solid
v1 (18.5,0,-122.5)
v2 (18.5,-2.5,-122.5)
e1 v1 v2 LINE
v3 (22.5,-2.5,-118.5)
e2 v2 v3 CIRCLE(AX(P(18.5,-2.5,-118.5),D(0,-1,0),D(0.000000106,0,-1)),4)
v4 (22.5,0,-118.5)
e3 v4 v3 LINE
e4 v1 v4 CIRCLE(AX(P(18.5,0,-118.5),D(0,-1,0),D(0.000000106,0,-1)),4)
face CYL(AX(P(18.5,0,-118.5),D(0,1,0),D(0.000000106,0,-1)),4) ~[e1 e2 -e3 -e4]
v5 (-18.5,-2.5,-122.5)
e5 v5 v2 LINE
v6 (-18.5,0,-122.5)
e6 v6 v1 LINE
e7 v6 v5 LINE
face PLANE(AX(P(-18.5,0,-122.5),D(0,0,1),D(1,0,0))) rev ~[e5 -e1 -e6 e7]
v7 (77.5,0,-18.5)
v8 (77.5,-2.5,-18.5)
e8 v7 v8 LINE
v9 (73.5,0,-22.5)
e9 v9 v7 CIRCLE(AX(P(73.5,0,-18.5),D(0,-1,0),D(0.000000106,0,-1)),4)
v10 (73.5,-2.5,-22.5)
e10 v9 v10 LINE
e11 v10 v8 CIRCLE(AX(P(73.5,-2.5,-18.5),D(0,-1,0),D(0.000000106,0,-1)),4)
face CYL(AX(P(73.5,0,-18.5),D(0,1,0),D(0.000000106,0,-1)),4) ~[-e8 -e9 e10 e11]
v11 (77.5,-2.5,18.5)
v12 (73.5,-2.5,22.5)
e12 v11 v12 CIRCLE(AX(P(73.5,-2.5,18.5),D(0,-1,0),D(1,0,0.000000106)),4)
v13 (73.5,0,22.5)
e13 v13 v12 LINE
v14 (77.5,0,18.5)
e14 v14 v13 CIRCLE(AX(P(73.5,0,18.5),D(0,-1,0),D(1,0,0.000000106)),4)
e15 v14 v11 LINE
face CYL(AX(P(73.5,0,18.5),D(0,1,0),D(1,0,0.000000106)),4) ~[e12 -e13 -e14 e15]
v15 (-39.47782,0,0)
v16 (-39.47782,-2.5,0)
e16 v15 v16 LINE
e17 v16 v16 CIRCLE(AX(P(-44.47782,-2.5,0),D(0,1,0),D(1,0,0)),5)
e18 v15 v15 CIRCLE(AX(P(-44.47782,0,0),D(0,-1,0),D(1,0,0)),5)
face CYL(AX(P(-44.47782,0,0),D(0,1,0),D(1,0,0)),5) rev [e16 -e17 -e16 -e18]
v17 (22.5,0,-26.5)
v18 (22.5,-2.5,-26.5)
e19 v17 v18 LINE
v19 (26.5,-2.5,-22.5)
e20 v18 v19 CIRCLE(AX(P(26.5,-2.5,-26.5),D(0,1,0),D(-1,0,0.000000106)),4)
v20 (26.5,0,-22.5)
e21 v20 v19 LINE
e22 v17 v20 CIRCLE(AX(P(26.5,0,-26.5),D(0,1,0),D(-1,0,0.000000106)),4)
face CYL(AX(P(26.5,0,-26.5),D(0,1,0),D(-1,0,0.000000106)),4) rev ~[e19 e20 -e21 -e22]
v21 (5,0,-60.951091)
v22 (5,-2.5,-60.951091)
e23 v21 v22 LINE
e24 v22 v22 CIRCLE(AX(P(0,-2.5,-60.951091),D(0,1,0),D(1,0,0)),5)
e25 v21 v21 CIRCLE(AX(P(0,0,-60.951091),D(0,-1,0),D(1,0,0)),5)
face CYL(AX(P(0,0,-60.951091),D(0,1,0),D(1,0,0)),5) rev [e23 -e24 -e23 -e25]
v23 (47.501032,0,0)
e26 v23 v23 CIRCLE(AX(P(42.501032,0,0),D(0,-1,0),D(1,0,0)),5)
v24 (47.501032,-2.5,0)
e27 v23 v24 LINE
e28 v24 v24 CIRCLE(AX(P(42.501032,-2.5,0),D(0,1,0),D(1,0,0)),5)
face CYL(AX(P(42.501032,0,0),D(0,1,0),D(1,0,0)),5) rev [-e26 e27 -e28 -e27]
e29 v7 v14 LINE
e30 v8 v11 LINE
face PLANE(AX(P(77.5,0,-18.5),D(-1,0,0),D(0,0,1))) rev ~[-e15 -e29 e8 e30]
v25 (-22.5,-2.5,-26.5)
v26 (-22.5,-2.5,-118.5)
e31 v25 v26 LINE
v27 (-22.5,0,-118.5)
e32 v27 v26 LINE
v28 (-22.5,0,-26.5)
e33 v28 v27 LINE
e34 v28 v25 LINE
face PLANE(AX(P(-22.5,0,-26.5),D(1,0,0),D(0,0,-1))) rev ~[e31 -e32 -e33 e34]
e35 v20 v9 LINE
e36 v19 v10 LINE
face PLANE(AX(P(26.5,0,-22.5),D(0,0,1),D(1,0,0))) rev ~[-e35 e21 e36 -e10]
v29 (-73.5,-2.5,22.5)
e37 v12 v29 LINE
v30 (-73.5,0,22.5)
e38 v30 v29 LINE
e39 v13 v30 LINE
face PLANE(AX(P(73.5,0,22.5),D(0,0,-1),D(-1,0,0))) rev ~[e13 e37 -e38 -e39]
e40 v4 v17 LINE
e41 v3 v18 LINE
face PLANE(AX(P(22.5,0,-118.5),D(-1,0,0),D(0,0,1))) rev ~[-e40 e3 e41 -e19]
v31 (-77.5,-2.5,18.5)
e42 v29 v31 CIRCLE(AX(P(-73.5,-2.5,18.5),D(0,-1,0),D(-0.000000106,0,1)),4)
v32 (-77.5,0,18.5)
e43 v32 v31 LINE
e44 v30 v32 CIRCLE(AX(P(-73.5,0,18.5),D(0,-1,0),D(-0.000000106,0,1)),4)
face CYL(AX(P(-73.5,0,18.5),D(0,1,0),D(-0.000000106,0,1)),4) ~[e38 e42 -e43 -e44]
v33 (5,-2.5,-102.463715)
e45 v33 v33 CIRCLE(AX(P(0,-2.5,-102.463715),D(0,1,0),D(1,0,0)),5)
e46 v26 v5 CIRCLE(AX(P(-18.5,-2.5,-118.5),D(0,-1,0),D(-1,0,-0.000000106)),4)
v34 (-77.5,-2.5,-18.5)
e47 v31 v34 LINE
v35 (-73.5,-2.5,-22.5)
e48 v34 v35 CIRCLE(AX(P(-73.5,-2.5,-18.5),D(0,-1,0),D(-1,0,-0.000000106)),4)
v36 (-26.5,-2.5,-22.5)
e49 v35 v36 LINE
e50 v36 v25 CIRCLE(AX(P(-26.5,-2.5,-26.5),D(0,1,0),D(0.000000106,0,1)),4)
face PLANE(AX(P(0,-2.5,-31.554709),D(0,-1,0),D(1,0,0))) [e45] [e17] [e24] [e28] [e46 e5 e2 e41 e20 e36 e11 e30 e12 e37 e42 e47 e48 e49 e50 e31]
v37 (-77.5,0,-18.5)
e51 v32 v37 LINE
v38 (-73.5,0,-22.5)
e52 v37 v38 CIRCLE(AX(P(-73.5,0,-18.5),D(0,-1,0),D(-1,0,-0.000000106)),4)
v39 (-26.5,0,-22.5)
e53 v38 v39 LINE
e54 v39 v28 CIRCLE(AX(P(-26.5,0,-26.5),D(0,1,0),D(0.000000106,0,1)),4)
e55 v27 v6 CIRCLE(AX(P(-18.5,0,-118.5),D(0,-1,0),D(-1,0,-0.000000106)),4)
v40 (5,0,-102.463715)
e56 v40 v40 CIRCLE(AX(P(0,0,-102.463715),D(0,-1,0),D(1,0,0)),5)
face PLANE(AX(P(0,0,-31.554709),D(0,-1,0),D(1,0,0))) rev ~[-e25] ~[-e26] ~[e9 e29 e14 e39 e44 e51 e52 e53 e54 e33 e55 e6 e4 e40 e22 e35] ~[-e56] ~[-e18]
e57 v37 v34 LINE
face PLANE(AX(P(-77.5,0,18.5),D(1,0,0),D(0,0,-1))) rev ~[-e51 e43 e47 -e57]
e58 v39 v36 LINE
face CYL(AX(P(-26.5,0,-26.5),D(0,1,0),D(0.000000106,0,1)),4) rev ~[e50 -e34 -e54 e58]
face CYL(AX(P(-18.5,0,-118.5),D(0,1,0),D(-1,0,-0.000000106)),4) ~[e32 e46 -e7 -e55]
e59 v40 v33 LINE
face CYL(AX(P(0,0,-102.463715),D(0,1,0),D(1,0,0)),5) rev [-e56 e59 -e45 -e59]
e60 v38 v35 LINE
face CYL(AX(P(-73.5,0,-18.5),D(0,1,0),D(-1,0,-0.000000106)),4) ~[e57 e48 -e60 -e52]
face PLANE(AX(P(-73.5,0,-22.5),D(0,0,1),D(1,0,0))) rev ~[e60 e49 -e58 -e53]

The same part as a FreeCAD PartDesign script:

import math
import FreeCAD as App
import Part
import Sketcher
from FreeCAD import Vector

doc = App.newDocument("Part")
body = doc.addObject("PartDesign::Body", "Body")

# Sketch on XZ plane
sketch1 = body.newObject("Sketcher::SketchObject", "Sketch")
sketch1.AttachmentSupport = (doc.getObject("XZ_Plane"), [""])
sketch1.MapMode = "FlatFace"
sketch1.addGeometry([
    Part.ArcOfCircle(Part.Circle(Vector(73.5, 18.5, 0), Vector(0, 0, 1), 4), math.radians(0), math.radians(90)),  # 0
    Part.LineSegment(Vector(73.5, 22.5, 0), Vector(-73.5, 22.5, 0)),  # 1
    Part.ArcOfCircle(Part.Circle(Vector(-73.5, 18.5, 0), Vector(0, 0, 1), 4), math.radians(90), math.radians(180)),  # 2
    Part.LineSegment(Vector(-77.5, 18.5, 0), Vector(-77.5, -18.5, 0)),  # 3
    Part.ArcOfCircle(Part.Circle(Vector(-73.5, -18.5, 0), Vector(0, 0, 1), 4), math.radians(-180), math.radians(-90)),  # 4
    Part.LineSegment(Vector(-73.5, -22.5, 0), Vector(-26.5, -22.5, 0)),  # 5
    Part.ArcOfCircle(Part.Circle(Vector(-26.5, -26.5, 0), Vector(0, 0, 1), 4), math.radians(0), math.radians(90)),  # 6
    Part.LineSegment(Vector(-22.5, -26.5, 0), Vector(-22.5, -118.5, 0)),  # 7
    Part.ArcOfCircle(Part.Circle(Vector(-18.5, -118.5, 0), Vector(0, 0, 1), 4), math.radians(-180), math.radians(-90)),  # 8
    Part.LineSegment(Vector(-18.5, -122.5, 0), Vector(18.5, -122.5, 0)),  # 9
    Part.ArcOfCircle(Part.Circle(Vector(18.5, -118.5, 0), Vector(0, 0, 1), 4), math.radians(-90), math.radians(0)),  # 10
    Part.LineSegment(Vector(22.5, -118.5, 0), Vector(22.5, -26.5, 0)),  # 11
    Part.ArcOfCircle(Part.Circle(Vector(26.5, -26.5, 0), Vector(0, 0, 1), 4), math.radians(90), math.radians(180)),  # 12
    Part.LineSegment(Vector(26.5, -22.5, 0), Vector(73.5, -22.5, 0)),  # 13
    Part.ArcOfCircle(Part.Circle(Vector(73.5, -18.5, 0), Vector(0, 0, 1), 4), math.radians(-90), math.radians(0)),  # 14
    Part.LineSegment(Vector(77.5, -18.5, 0), Vector(77.5, 18.5, 0)),  # 15
], False)
sketch1.addConstraint([
    Sketcher.Constraint("Tangent", 0, 2, 1, 1),
    Sketcher.Constraint("Tangent", 1, 2, 2, 1),
    Sketcher.Constraint("Tangent", 2, 2, 3, 1),
    Sketcher.Constraint("Tangent", 3, 2, 4, 1),
    Sketcher.Constraint("Tangent", 4, 2, 5, 1),
    Sketcher.Constraint("Tangent", 5, 2, 6, 2),
    Sketcher.Constraint("Tangent", 6, 1, 7, 1),
    Sketcher.Constraint("Tangent", 7, 2, 8, 1),
    Sketcher.Constraint("Tangent", 8, 2, 9, 1),
    Sketcher.Constraint("Tangent", 9, 2, 10, 1),
    Sketcher.Constraint("Tangent", 10, 2, 11, 1),
    Sketcher.Constraint("Tangent", 11, 2, 12, 2),
    Sketcher.Constraint("Tangent", 12, 1, 13, 1),
    Sketcher.Constraint("Tangent", 13, 2, 14, 1),
    Sketcher.Constraint("Tangent", 14, 2, 15, 1),
    Sketcher.Constraint("Tangent", 15, 2, 0, 1),
    Sketcher.Constraint("Horizontal", 1),
    Sketcher.Constraint("Vertical", 3),
    Sketcher.Constraint("Horizontal", 5),
    Sketcher.Constraint("Vertical", 7),
    Sketcher.Constraint("Horizontal", 9),
    Sketcher.Constraint("Vertical", 11),
    Sketcher.Constraint("Horizontal", 13),
    Sketcher.Constraint("Vertical", 15),
    Sketcher.Constraint("Equal", 0, 2),
    Sketcher.Constraint("Equal", 2, 4),
    Sketcher.Constraint("Equal", 4, 6),
    Sketcher.Constraint("Equal", 6, 8),
    Sketcher.Constraint("Equal", 8, 10),
    Sketcher.Constraint("Equal", 10, 12),
    Sketcher.Constraint("Equal", 12, 14),
    Sketcher.Constraint("Symmetric", 0, 3, 4, 3, -1, 1),
    Sketcher.Constraint("Symmetric", 6, 3, 12, 3, -2),
    Sketcher.Constraint("Equal", 9, 3),
    Sketcher.Constraint("Radius", 0, 4.0),
    Sketcher.Constraint("DistanceX", 1, 2, 1, 1, 147.0),
    Sketcher.Constraint("DistanceX", 5, 1, 5, 2, 47.0),
    Sketcher.Constraint("DistanceY", 7, 2, 7, 1, 92.0),
])
pad1 = body.newObject("PartDesign::Pad", "Pad")
pad1.Profile = sketch1
pad1.Length = 2.5

# Sketch on XZ plane
sketch2 = body.newObject("Sketcher::SketchObject", "Sketch001")
sketch2.AttachmentSupport = (doc.getObject("XZ_Plane"), [""])
sketch2.MapMode = "FlatFace"
sketch2.addGeometry([
    Part.Circle(Vector(-44, 0, 0), Vector(0, 0, 1), 5),
    Part.Circle(Vector(43, 0, 0), Vector(0, 0, 1), 5),
    Part.Circle(Vector(0, -61, 0), Vector(0, 0, 1), 5),
    Part.Circle(Vector(0, -102, 0), Vector(0, 0, 1), 5),
], False)
sketch2.addConstraint([
    Sketcher.Constraint("Equal", 0, 1),
    Sketcher.Constraint("Equal", 1, 2),
    Sketcher.Constraint("Equal", 2, 3),
    Sketcher.Constraint("PointOnObject", 0, 3, -1),
    Sketcher.Constraint("PointOnObject", 1, 3, -1),
    Sketcher.Constraint("PointOnObject", 2, 3, -2),
    Sketcher.Constraint("PointOnObject", 3, 3, -2),
    Sketcher.Constraint("Diameter", 0, 10.0),
    Sketcher.Constraint("DistanceX", 0, 3, -1, 1, 44.47782),
    Sketcher.Constraint("DistanceY", 2, 3, -1, 1, 60.951091),
    Sketcher.Constraint("DistanceX", -1, 1, 1, 3, 42.501032),
    Sketcher.Constraint("DistanceY", 3, 3, -1, 1, 102.463715),
])
pocket1 = body.newObject("PartDesign::Pocket", "Pocket")
pocket1.Profile = sketch2
pocket1.Type = "ThroughAll"
pocket1.Reversed = True

doc.recompute()
